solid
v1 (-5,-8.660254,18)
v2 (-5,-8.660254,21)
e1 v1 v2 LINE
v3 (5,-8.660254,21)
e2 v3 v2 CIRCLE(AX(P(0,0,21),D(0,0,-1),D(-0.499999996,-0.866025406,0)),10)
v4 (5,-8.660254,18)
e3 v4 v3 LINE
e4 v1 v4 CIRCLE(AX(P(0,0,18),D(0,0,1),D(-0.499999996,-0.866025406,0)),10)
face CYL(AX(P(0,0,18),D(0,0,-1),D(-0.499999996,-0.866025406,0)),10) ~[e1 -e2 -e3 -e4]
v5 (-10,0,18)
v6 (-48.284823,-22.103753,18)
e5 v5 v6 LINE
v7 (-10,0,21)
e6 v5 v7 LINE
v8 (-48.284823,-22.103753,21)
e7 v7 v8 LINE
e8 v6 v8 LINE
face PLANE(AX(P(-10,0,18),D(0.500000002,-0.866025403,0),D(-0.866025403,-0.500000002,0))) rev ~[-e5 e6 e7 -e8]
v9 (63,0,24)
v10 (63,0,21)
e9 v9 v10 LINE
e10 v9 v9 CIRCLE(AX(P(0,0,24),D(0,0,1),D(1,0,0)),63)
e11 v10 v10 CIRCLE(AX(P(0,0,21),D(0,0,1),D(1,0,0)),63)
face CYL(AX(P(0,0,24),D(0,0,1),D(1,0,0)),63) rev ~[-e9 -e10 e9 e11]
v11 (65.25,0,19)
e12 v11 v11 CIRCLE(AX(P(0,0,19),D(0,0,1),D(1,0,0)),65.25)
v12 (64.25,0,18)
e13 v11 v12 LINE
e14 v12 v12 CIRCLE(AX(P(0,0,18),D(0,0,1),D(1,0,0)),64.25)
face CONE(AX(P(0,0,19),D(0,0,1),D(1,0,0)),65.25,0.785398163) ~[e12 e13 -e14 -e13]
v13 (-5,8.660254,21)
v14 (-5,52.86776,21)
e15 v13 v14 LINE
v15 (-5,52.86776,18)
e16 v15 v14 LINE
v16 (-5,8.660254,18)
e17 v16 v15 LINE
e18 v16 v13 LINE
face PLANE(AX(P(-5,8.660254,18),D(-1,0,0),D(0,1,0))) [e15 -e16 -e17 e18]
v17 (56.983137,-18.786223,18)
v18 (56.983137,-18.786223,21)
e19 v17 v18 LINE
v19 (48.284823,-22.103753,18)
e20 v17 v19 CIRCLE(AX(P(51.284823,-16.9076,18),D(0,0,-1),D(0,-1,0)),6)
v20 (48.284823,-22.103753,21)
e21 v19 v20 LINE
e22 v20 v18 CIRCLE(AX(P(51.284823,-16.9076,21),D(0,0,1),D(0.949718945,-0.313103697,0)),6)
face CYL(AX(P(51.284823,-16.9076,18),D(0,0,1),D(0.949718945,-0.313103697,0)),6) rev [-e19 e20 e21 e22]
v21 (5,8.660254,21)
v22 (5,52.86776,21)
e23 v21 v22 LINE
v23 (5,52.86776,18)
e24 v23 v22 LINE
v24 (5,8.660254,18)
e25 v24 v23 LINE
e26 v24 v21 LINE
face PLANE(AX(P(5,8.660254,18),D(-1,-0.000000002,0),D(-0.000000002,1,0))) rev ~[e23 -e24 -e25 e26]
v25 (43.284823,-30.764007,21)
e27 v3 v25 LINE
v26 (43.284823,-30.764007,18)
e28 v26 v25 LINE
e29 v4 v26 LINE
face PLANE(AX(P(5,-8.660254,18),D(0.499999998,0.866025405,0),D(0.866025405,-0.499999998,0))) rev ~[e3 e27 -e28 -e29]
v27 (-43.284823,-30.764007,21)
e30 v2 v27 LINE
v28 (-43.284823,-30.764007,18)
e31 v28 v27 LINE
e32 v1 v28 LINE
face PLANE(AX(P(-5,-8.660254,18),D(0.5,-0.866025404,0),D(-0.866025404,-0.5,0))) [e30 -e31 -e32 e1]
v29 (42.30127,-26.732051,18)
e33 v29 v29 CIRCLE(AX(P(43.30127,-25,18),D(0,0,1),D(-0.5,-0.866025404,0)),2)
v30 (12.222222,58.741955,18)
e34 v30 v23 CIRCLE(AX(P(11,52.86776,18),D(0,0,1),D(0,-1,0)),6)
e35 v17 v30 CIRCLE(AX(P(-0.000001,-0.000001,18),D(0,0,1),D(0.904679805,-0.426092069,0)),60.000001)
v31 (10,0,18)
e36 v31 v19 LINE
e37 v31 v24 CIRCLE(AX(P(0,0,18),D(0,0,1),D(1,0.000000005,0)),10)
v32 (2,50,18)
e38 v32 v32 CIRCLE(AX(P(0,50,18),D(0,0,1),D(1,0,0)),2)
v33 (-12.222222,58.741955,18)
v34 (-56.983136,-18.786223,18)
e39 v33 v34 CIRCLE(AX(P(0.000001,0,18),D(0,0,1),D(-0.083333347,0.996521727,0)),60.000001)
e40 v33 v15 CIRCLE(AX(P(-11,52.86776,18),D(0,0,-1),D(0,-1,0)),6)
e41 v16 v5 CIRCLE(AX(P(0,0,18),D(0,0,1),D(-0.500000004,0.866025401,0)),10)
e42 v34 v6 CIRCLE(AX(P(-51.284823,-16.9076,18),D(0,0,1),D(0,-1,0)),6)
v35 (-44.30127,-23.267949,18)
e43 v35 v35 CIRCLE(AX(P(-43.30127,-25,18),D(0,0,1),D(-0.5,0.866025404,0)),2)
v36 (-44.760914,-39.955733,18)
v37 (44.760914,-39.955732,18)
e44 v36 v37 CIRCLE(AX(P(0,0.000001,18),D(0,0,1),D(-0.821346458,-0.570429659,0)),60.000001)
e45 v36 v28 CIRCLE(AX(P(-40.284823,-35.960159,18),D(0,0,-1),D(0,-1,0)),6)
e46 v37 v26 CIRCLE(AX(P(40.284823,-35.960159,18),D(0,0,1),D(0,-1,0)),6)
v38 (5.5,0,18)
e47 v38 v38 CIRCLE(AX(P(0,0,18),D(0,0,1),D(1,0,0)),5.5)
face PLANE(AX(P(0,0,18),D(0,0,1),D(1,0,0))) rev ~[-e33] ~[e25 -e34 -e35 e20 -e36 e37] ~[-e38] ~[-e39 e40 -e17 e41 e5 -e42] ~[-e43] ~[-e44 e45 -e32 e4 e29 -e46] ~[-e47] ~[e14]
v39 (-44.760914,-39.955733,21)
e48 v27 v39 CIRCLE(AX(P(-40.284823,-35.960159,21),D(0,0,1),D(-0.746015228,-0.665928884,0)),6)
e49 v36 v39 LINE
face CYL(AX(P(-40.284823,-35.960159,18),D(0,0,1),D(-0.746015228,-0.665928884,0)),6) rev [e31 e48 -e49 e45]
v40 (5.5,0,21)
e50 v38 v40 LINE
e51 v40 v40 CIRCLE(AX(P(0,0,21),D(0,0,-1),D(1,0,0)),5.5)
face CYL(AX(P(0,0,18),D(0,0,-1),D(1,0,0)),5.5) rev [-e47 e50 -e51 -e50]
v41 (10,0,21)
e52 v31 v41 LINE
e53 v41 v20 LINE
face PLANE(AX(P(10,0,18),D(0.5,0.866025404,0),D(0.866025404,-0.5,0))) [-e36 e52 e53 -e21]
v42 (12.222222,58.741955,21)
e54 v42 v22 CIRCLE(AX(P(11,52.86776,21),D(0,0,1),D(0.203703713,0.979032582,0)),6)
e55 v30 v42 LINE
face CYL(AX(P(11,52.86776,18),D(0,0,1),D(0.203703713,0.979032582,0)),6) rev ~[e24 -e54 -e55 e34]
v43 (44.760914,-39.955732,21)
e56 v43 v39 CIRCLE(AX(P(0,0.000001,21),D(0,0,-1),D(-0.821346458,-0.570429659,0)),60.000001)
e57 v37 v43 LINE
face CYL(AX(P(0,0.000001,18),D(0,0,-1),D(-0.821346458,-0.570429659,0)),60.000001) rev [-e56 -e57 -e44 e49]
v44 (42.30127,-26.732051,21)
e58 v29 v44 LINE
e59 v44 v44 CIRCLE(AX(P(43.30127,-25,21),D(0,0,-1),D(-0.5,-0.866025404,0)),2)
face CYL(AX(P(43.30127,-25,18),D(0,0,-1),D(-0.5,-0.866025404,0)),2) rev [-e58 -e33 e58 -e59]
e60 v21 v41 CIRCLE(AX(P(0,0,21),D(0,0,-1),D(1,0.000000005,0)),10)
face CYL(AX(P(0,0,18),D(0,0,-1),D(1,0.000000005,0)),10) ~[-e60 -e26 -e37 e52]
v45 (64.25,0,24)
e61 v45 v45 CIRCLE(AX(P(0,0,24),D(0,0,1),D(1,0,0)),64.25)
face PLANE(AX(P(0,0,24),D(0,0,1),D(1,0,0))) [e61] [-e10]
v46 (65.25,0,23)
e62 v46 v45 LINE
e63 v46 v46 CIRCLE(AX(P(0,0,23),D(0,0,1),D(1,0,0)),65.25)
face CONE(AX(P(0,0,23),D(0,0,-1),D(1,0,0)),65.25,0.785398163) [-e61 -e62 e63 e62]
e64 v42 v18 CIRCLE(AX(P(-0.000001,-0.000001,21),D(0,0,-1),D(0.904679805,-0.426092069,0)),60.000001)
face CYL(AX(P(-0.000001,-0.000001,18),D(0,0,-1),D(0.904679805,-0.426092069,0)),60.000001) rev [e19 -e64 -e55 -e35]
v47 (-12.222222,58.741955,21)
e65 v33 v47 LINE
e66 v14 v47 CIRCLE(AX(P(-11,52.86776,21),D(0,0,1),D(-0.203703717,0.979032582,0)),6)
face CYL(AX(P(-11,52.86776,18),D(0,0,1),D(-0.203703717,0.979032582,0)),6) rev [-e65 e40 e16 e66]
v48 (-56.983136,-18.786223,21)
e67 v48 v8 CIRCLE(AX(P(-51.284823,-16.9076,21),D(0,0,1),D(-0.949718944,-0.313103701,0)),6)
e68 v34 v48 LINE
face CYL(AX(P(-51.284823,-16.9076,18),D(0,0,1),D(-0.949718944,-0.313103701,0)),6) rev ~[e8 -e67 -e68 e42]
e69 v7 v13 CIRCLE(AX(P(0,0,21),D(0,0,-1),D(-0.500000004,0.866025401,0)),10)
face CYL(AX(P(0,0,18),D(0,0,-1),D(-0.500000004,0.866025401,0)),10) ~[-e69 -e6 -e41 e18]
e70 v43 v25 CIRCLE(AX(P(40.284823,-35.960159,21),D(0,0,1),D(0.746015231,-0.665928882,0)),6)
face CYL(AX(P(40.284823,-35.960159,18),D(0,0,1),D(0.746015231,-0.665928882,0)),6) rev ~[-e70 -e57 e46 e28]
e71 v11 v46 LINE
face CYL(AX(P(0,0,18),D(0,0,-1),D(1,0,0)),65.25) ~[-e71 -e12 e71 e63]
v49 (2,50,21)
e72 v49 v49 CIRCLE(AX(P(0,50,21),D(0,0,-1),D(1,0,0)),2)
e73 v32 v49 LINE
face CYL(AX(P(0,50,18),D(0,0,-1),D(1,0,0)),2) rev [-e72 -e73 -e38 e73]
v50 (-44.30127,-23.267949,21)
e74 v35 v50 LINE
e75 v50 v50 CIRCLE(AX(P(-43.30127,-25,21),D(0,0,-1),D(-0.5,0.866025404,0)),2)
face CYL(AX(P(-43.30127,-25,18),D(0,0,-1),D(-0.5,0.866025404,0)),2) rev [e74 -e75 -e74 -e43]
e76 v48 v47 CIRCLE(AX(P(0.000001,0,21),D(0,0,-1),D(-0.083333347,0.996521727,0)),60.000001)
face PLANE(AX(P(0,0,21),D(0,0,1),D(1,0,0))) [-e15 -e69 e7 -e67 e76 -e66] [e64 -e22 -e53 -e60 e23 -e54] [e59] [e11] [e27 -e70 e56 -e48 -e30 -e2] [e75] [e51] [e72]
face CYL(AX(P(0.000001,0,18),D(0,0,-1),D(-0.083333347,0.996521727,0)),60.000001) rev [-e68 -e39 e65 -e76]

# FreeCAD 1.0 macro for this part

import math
import FreeCAD as App
import Part
import Sketcher
from FreeCAD import Vector
Q = App.Units.Quantity


def edges_at(feature, points):
    """Names of the edges that pass closest to the given points."""
    edges = feature.Shape.Edges
    near = lambda p: min(range(len(edges)), key=lambda i: edges[i].distToShape(Part.Vertex(*p))[0])
    return sorted({f"Edge{near(p) + 1}" for p in points})

doc = App.newDocument("Part")
body = doc.addObject("PartDesign::Body", "Body")

# Sketch on XY plane
sketch1 = body.newObject("Sketcher::SketchObject", "Sketch")
sketch1.AttachmentSupport = (doc.getObject("XY_Plane"), [""])
sketch1.MapMode = "FlatFace"
sketch1.addGeometry(Part.Circle(Vector(0, 0, 0), Vector(0, 0, 1), 65.25), False)
sketch1.addConstraint([
    Sketcher.Constraint("Coincident", 0, 3, -1, 1),
    Sketcher.Constraint("Diameter", 0, 130.5),
])
pad1 = body.newObject("PartDesign::Pad", "Pad")
pad1.Profile = sketch1
pad1.Length = 6

# Sketch on XY plane
sketch2 = body.newObject("Sketcher::SketchObject", "Sketch001")
sketch2.AttachmentSupport = (doc.getObject("XY_Plane"), [""])
sketch2.MapMode = "FlatFace"
sketch2.addGeometry(Part.Circle(Vector(0, 0, 0), Vector(0, 0, 1), 5.5), False)
sketch2.addConstraint([
    Sketcher.Constraint("Coincident", 0, 3, -1, 1),
    Sketcher.Constraint("Diameter", 0, 11.0),
])
pocket1 = body.newObject("PartDesign::Pocket", "Pocket")
pocket1.Profile = sketch2
pocket1.Type = "ThroughAll"
pocket1.Reversed = True

# Sketch on XY plane
sketch3 = body.newObject("Sketcher::SketchObject", "Sketch002")
sketch3.AttachmentSupport = (doc.getObject("XY_Plane"), [""])
sketch3.MapMode = "FlatFace"
sketch3.addGeometry([
    Part.Circle(Vector(0, 50, 0), Vector(0, 0, 1), 2),  # 0
    Part.ArcOfCircle(Part.Circle(Vector(0.000001, 0, 0), Vector(0, 0, 1), 60.000001), math.radians(94.780193), math.radians(205.219808)),  # 1
    Part.LineSegment(Vector(-54.280788, -25.565525, 0), Vector(-10, 0, 0)),  # 2
    Part.ArcOfCircle(Part.Circle(Vector(0, 0, 0), Vector(0, 0, 1), 10), math.radians(120), math.radians(179.999999)),  # 3
    Part.LineSegment(Vector(-5, 8.660254, 0), Vector(-5, 59.791304, 0)),  # 4
], False)
sketch3.addConstraint([
    Sketcher.Constraint("Coincident", 1, 2, 2, 1),
    Sketcher.Constraint("Coincident", 2, 2, 3, 2),
    Sketcher.Constraint("Coincident", 3, 1, 4, 1),
    Sketcher.Constraint("Coincident", 4, 2, 1, 1),
    Sketcher.Constraint("Vertical", 4),
    Sketcher.Constraint("Coincident", 1, 3, -1, 1),
    Sketcher.Constraint("Coincident", 3, 3, -1, 1),
    Sketcher.Constraint("PointOnObject", 0, 3, -2),
    Sketcher.Constraint("PointOnObject", 2, 2, -1),
    Sketcher.Constraint("Diameter", 0, 4.0),
    Sketcher.Constraint("Radius", 1, 60.000001),
    Sketcher.Constraint("Radius", 3, 10.0),
    Sketcher.Constraint("Angle", 2, Q("30 deg")),
    Sketcher.Constraint("DistanceY", -1, 1, 0, 3, 50.0),
    Sketcher.Constraint("DistanceX", 3, 1, -1, 1, 5.0),
])
pocket2 = body.newObject("PartDesign::Pocket", "Pocket001")
pocket2.Profile = sketch3
pocket2.Type = "ThroughAll"
pocket2.Reversed = True
doc.recompute()

polarpattern = body.newObject("PartDesign::PolarPattern", "PolarPattern")
polarpattern.Originals = [pocket2]
polarpattern.Axis = (doc.getObject("Z_Axis"), [""])
polarpattern.Angle = 360
polarpattern.Occurrences = 3
body.Tip = polarpattern
doc.recompute()

chamfer = body.newObject("PartDesign::Chamfer", "Chamfer")
chamfer.Base = (polarpattern, edges_at(polarpattern, [(-65.25, 0, 6), (-65.25, 0, 0)]))
chamfer.Size = 1
doc.recompute()

fillet = body.newObject("PartDesign::Fillet", "Fillet")
fillet.Base = (chamfer, edges_at(chamfer, [
    (-54.281, -25.566, 3),
    (-5, 59.791, 3),
    (5, 59.791, 3),
    (54.281, -25.566, 3),
    (49.281, -34.226, 3),
    (-49.281, -34.226, 3),
]))
fillet.Radius = 6

# Sketch on XY plane
sketch4 = body.newObject("Sketcher::SketchObject", "Sketch003")
sketch4.AttachmentSupport = (doc.getObject("XY_Plane"), [""])
sketch4.MapMode = "FlatFace"
sketch4.AttachmentOffset = App.Placement(Vector(0, 0, 6), App.Rotation())
sketch4.addGeometry(Part.Circle(Vector(0, 0, 0), Vector(0, 0, 1), 63), False)
sketch4.addConstraint([
    Sketcher.Constraint("Coincident", 0, 3, -1, 1),
    Sketcher.Constraint("Diameter", 0, 126.0),
])
pocket3 = body.newObject("PartDesign::Pocket", "Pocket002")
pocket3.Profile = sketch4
pocket3.Length = 3
body2 = doc.addObject("PartDesign::Body", "Body001")
doc.recompute()

body.Placement = App.Placement(Vector(0, 0, 18), App.Rotation(Vector(0, 0, 1), 0))
boolean = body2.newObject("PartDesign::Boolean", "Boolean")
boolean.Type = "Fuse"
boolean.addObjects([body])

doc.recompute()
